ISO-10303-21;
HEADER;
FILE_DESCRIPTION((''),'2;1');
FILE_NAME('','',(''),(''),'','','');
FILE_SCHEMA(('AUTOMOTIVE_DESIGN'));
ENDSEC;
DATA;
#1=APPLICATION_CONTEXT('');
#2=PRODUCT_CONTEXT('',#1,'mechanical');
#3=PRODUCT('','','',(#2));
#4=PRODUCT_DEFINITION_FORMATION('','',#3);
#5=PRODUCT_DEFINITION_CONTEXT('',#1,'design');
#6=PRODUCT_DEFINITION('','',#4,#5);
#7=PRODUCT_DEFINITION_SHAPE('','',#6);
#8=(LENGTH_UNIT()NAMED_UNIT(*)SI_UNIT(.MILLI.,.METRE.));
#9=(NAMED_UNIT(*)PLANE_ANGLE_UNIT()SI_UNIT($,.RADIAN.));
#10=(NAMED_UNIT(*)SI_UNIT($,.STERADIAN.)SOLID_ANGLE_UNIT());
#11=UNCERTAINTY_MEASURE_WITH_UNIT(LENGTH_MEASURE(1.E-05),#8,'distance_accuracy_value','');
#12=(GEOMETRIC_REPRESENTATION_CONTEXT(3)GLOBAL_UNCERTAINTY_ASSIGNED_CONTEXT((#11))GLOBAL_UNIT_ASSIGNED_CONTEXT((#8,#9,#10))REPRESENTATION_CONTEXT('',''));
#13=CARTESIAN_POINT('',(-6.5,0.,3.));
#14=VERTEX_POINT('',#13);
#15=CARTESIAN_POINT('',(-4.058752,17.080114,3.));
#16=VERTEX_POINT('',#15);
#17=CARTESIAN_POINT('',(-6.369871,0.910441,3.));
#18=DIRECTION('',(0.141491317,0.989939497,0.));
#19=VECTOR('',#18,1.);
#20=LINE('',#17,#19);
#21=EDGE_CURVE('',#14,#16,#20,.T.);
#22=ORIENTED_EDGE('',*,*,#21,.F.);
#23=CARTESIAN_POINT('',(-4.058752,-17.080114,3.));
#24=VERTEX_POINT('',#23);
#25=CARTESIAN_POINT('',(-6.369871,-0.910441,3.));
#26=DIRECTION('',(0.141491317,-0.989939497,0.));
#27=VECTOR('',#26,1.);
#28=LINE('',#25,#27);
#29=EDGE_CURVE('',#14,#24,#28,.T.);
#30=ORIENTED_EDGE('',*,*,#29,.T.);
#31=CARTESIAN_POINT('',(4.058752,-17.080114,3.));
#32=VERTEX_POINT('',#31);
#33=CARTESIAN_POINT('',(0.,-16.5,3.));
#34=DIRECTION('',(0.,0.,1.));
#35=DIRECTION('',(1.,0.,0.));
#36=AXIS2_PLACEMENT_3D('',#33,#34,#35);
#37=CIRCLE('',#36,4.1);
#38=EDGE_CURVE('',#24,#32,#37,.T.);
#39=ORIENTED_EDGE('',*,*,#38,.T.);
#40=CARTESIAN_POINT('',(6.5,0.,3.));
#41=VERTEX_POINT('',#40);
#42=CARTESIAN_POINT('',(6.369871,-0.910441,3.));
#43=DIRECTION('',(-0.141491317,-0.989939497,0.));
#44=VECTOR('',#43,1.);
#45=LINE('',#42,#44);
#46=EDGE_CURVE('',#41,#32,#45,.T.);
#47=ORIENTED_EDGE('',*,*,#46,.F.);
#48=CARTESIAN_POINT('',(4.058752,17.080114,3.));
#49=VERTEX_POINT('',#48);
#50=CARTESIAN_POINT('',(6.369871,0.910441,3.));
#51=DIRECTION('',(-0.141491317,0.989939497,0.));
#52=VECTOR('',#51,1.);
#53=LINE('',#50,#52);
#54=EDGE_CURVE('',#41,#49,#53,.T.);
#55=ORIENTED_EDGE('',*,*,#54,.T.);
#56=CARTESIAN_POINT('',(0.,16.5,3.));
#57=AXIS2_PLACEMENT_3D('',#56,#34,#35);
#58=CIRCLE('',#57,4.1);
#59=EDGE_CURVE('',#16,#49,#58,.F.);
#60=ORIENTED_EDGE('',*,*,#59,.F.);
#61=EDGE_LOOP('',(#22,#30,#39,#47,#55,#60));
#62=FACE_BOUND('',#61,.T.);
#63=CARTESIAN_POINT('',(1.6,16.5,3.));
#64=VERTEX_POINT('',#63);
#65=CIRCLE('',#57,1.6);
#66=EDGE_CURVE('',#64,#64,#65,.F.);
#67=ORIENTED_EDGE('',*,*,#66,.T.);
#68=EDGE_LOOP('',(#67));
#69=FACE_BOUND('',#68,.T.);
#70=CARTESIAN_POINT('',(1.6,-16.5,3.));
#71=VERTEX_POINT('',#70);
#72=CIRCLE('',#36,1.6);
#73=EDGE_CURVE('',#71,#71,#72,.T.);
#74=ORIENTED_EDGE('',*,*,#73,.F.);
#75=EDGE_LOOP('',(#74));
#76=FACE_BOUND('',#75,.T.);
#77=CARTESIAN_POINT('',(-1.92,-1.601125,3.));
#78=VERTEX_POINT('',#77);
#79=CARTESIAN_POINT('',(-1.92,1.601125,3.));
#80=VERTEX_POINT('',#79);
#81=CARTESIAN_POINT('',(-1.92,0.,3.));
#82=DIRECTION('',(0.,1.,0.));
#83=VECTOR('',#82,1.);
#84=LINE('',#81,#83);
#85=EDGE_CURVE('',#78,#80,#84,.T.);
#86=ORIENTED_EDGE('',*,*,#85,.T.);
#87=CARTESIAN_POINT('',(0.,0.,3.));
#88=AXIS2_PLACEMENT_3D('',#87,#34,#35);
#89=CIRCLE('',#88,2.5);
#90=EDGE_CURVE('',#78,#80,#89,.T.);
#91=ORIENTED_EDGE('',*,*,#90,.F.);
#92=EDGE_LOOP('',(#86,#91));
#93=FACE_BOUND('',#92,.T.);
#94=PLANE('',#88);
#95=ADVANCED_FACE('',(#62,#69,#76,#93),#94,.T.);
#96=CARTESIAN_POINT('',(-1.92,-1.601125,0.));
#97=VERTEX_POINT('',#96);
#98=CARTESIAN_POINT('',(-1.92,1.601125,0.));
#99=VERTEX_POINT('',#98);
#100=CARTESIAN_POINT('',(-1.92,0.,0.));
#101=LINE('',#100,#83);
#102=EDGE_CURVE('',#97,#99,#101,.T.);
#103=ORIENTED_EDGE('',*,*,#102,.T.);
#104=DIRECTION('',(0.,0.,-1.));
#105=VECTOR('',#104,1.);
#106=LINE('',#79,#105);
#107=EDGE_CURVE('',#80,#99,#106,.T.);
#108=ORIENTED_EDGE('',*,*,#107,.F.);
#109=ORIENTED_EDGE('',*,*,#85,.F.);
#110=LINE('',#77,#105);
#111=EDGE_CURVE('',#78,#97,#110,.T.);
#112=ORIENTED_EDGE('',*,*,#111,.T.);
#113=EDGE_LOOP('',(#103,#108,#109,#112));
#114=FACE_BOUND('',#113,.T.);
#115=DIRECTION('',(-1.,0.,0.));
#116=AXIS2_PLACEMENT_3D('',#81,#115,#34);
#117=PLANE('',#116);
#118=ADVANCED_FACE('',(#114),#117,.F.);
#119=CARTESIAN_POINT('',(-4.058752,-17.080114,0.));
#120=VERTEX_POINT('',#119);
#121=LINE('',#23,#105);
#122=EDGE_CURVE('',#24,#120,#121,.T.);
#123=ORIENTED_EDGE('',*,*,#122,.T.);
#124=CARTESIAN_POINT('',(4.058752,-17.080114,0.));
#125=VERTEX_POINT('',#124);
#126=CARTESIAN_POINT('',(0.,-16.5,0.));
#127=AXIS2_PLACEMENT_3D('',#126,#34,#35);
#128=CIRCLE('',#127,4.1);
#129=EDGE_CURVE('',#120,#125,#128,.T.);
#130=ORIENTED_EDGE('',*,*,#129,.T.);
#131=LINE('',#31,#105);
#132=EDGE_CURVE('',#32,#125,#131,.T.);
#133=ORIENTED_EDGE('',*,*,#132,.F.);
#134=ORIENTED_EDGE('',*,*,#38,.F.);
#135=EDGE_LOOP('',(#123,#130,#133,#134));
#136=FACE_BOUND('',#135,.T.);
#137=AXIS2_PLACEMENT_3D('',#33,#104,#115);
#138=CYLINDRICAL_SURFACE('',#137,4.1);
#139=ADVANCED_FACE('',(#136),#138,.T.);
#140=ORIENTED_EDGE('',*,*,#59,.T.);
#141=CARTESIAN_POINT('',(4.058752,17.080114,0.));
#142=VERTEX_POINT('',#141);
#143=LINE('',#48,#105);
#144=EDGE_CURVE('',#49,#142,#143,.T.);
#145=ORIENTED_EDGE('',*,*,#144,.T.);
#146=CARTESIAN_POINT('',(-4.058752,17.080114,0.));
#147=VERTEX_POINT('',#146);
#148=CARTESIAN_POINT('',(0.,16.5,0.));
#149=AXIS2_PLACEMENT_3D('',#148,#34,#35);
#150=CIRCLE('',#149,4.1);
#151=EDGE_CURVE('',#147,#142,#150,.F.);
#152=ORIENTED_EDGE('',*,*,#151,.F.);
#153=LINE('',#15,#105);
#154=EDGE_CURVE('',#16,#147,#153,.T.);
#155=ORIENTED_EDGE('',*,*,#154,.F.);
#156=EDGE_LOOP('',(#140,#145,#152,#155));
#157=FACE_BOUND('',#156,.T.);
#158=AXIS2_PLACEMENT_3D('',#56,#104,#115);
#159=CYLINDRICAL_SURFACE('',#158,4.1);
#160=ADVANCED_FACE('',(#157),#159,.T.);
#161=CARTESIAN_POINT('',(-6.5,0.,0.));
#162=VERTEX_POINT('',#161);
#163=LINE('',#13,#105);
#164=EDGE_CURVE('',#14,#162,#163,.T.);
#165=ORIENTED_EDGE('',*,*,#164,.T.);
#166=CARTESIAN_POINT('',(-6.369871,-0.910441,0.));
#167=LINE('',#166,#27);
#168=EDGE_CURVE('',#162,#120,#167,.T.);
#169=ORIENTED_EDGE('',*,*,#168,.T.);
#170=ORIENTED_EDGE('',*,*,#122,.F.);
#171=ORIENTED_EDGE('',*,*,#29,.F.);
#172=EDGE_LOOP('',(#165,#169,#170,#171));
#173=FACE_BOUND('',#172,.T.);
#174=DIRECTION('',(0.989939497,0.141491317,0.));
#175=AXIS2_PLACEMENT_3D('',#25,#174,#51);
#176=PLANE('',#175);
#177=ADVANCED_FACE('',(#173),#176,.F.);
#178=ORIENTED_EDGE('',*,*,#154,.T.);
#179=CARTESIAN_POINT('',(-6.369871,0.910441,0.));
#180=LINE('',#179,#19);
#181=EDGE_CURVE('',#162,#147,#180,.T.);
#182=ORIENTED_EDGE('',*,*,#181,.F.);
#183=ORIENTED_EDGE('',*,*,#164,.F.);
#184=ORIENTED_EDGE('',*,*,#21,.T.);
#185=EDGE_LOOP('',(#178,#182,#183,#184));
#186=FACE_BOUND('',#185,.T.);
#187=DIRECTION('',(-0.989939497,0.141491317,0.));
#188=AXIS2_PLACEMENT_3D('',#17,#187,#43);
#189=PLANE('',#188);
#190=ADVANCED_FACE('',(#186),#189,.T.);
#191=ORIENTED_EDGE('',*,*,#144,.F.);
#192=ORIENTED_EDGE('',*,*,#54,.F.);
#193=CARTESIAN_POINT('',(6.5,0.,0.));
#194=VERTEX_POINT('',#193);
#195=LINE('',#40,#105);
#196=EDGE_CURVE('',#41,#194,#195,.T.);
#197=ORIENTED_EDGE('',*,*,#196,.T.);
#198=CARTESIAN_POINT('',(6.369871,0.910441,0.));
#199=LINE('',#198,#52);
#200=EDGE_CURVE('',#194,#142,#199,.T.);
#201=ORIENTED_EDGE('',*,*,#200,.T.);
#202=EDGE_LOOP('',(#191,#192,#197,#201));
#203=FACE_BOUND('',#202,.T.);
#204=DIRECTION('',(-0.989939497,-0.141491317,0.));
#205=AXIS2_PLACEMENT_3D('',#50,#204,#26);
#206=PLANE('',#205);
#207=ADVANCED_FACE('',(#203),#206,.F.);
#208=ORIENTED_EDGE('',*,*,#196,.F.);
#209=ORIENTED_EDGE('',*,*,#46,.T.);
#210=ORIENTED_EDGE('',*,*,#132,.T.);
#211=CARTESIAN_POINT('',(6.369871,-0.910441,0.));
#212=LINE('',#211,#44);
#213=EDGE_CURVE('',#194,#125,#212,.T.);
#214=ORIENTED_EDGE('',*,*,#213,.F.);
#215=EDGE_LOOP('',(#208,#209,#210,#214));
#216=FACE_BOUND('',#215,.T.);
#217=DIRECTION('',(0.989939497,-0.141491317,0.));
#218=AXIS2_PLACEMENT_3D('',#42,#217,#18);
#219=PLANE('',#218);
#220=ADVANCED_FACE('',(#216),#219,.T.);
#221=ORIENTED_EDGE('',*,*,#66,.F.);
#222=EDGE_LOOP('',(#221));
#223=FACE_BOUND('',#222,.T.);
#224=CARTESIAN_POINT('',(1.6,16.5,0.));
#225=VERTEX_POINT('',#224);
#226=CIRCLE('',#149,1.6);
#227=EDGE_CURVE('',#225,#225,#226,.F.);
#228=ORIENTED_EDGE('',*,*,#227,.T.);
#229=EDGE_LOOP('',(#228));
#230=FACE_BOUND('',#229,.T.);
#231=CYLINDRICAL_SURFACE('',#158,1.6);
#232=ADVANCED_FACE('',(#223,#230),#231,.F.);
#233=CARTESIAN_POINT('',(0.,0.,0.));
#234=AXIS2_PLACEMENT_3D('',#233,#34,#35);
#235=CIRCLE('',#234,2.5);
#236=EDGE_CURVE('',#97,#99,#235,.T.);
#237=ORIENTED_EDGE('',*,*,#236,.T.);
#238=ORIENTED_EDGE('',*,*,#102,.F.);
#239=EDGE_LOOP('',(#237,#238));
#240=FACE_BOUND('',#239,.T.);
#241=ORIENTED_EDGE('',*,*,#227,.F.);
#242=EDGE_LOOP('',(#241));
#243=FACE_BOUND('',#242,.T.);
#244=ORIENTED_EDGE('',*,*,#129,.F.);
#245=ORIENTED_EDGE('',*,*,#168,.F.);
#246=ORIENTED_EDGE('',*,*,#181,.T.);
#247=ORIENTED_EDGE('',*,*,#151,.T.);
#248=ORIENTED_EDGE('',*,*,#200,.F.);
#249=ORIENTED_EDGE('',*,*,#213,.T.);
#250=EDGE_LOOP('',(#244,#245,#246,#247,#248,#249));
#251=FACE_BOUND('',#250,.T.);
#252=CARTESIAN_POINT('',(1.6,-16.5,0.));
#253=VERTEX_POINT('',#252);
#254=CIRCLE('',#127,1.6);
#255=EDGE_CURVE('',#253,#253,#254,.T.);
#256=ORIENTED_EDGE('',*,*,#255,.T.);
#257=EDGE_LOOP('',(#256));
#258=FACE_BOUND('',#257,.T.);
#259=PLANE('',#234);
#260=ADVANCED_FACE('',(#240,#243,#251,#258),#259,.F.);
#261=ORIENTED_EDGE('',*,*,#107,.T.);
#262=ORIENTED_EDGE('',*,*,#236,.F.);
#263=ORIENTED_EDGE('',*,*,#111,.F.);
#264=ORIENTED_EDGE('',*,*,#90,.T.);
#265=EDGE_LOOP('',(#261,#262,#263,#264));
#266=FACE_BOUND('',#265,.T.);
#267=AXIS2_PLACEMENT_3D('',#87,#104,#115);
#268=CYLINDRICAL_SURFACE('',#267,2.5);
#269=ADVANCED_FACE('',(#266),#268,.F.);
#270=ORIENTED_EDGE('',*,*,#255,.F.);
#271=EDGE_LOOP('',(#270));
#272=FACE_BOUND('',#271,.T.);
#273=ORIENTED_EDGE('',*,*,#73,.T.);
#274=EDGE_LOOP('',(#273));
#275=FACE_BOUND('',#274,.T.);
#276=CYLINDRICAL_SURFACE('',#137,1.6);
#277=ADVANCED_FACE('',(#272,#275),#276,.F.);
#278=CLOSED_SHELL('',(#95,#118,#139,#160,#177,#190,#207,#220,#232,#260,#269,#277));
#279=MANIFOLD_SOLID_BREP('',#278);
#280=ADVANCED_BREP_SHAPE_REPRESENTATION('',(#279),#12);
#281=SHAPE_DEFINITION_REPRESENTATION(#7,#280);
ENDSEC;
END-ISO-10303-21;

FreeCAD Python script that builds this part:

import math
import FreeCAD as App
import Part
import Sketcher
from FreeCAD import Vector
Q = App.Units.Quantity

doc = App.newDocument("Part")
body = doc.addObject("PartDesign::Body", "Body")

# Sketch on XY plane
sketch1 = body.newObject("Sketcher::SketchObject", "Sketch")
sketch1.AttachmentSupport = (doc.getObject("XY_Plane"), [""])
sketch1.MapMode = "FlatFace"
sketch1.addGeometry([
    Part.LineSegment(Vector(-6.5, 0, 0), Vector(-4.058752, -17.080114, 0)),  # 0
    Part.ArcOfCircle(Part.Circle(Vector(0, -16.5, 0), Vector(0, 0, 1), 4.1), math.radians(-171.865848), math.radians(-8.134152)),  # 1
    Part.LineSegment(Vector(4.058752, -17.080114, 0), Vector(6.5, 0, 0)),  # 2
    Part.LineSegment(Vector(6.5, 0, 0), Vector(4.058752, 17.080114, 0)),  # 3
    Part.ArcOfCircle(Part.Circle(Vector(0, 16.5, 0), Vector(0, 0, 1), 4.1), math.radians(8.134152), math.radians(171.865848)),  # 4
    Part.LineSegment(Vector(-4.058752, 17.080114, 0), Vector(-6.5, 0, 0)),  # 5
    Part.Circle(Vector(0, -16.5, 0), Vector(0, 0, 1), 1.6),  # 6
    Part.ArcOfCircle(Part.Circle(Vector(0, 0, 0), Vector(0, 0, 1), 2.5), math.radians(-140.174629), math.radians(140.174629)),  # 7
    Part.LineSegment(Vector(-1.92, -1.601125, 0), Vector(-1.92, 1.601125, 0)),  # 8
    Part.Circle(Vector(0, 16.5, 0), Vector(0, 0, 1), 1.6),  # 9
], False)
sketch1.addConstraint([
    Sketcher.Constraint("Tangent", 0, 2, 1, 1),
    Sketcher.Constraint("Tangent", 1, 2, 2, 1),
    Sketcher.Constraint("Coincident", 2, 2, 3, 1),
    Sketcher.Constraint("Tangent", 3, 2, 4, 1),
    Sketcher.Constraint("Tangent", 4, 2, 5, 1),
    Sketcher.Constraint("Coincident", 5, 2, 0, 1),
    Sketcher.Constraint("Coincident", 7, 1, 8, 1),
    Sketcher.Constraint("Coincident", 8, 2, 7, 2),
    Sketcher.Constraint("Vertical", 8),
    Sketcher.Constraint("Coincident", 7, 3, -1, 1),
    Sketcher.Constraint("Coincident", 6, 3, 1, 3),
    Sketcher.Constraint("Coincident", 9, 3, 4, 3),
    Sketcher.Constraint("Equal", 1, 4),
    Sketcher.Constraint("Equal", 6, 9),
    Sketcher.Constraint("Symmetric", 1, 3, 4, 3, -1, 1),
    Sketcher.Constraint("Symmetric", 2, 2, 5, 2, -1, 1),
    Sketcher.Constraint("Symmetric", 0, 2, 1, 2, -2),
    Sketcher.Constraint("Diameter", 6, Q("3.2 mm")),
    Sketcher.Constraint("Radius", 1, Q("4.1 mm")),
    Sketcher.Constraint("Radius", 7, Q("2.5 mm")),
    Sketcher.Constraint("DistanceY", 1, 3, 4, 3, Q("33 mm")),
    Sketcher.Constraint("DistanceX", 5, 2, 2, 2, Q("13 mm")),
    Sketcher.Constraint("DistanceX", 7, 1, -1, 1, Q("1.92 mm")),
])
pad1 = body.newObject("PartDesign::Pad", "Pad")
pad1.Profile = sketch1
pad1.Length = 3

doc.recompute()
